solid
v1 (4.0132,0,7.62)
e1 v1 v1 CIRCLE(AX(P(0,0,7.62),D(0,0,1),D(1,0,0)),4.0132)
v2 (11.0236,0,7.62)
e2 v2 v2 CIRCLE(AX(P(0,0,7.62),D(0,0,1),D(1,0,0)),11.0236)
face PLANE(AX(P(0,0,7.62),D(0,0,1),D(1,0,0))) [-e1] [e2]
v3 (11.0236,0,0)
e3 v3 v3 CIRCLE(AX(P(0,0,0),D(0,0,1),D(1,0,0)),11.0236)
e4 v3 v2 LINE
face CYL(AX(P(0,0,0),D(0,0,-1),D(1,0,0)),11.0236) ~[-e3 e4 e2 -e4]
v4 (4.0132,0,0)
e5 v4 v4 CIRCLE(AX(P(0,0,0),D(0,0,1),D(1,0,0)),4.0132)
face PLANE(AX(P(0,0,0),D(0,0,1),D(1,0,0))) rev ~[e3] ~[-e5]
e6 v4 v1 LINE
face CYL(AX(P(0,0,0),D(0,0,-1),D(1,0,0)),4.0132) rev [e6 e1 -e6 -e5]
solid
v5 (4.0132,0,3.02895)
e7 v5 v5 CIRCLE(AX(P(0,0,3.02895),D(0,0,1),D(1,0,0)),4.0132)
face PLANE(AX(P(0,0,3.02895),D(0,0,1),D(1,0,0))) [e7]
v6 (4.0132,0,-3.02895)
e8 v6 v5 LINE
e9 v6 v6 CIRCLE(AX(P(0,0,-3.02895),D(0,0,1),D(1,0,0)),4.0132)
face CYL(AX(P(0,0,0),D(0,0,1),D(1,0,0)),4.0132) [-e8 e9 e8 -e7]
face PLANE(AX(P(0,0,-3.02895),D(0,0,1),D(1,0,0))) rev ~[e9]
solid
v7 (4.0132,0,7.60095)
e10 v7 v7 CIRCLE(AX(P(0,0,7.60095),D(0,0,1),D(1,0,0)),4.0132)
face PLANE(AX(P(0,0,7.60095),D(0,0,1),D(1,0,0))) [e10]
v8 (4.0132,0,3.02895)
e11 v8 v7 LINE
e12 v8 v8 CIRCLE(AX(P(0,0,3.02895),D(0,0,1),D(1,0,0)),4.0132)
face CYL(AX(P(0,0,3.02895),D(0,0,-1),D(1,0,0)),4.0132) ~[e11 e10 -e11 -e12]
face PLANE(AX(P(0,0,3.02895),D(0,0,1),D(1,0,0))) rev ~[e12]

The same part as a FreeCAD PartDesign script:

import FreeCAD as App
import Part
import Sketcher

V = App.Vector
Q = App.Units.Quantity

doc = App.newDocument("Part")
params = doc.addObject("Spreadsheet::Sheet", "Params")
for row, (alias, value) in enumerate([
    ("sketch1_diameter", "0.316 in"),
    ("pad1_length", "0.2385 in"),
    ("sketch2_diameter", "0.868 in"),
    ("sketch2_diameter2", "0.316 in"),
    ("pad2_length", "0.3 in"),
    ("sketch3_diameter", "0.316 in"),
    ("pad3_length", "0.18 in"),
], start=1):
    params.set(f"A{row}", alias)
    params.set(f"B{row}", "=" + value)
    params.setAlias(f"B{row}", alias)

body = doc.addObject("PartDesign::Body", "Body")

sketch1 = body.newObject("Sketcher::SketchObject", "Sketch")
sketch1.AttachmentSupport = (doc.getObject("XY_Plane"), [""])
sketch1.MapMode = "FlatFace"
sketch1.addGeometry(Part.Circle(V(0, 0, 0), V(0, 0, 1), 4.0132), False)
sketch1.addConstraint(Sketcher.Constraint("Coincident", 0, 3, -1, 1))
sketch1.addConstraint(Sketcher.Constraint("Diameter", 0, Q("0.316 in")))
sketch1.setExpression("Constraints[1]", "Params.sketch1_diameter")
pad1 = body.newObject("PartDesign::Pad", "Pad")
pad1.Profile = sketch1
pad1.setExpression("Length", "Params.pad1_length")
pad1.Midplane = True
body2 = doc.addObject("PartDesign::Body", "Body001")

sketch2 = body2.newObject("Sketcher::SketchObject", "Sketch001")
sketch2.AttachmentSupport = (doc.getObject("XY_Plane001"), [""])
sketch2.MapMode = "FlatFace"
sketch2.addGeometry(Part.Circle(V(0, 0, 0), V(0, 0, 1), 11.0236), False)
sketch2.addGeometry(Part.Circle(V(0, 0, 0), V(0, 0, 1), 4.0132), False)
sketch2.addConstraint(Sketcher.Constraint("Coincident", 0, 3, -1, 1))
sketch2.addConstraint(Sketcher.Constraint("Coincident", 1, 3, -1, 1))
sketch2.addConstraint(Sketcher.Constraint("Diameter", 0, Q("0.868 in")))
sketch2.addConstraint(Sketcher.Constraint("Diameter", 1, Q("0.316 in")))
sketch2.setExpression("Constraints[2]", "Params.sketch2_diameter")
sketch2.setExpression("Constraints[3]", "Params.sketch2_diameter2")
pad2 = body2.newObject("PartDesign::Pad", "Pad001")
pad2.Profile = sketch2
pad2.setExpression("Length", "Params.pad2_length")
body3 = doc.addObject("PartDesign::Body", "Body002")

sketch3 = body3.newObject("Sketcher::SketchObject", "Sketch002")
sketch3.AttachmentSupport = (doc.getObject("XY_Plane002"), [""])
sketch3.MapMode = "FlatFace"
sketch3.AttachmentOffset = App.Placement(V(0, 0, 3.02895), App.Rotation())
sketch3.addGeometry(Part.Circle(V(0, 0, 0), V(0, 0, 1), 4.0132), False)
sketch3.addConstraint(Sketcher.Constraint("Coincident", 0, 3, -1, 1))
sketch3.addConstraint(Sketcher.Constraint("Diameter", 0, Q("0.316 in")))
sketch3.setExpression("Constraints[1]", "Params.sketch3_diameter")
pad3 = body3.newObject("PartDesign::Pad", "Pad002")
pad3.Profile = sketch3
pad3.setExpression("Length", "Params.pad3_length")

doc.recompute()
